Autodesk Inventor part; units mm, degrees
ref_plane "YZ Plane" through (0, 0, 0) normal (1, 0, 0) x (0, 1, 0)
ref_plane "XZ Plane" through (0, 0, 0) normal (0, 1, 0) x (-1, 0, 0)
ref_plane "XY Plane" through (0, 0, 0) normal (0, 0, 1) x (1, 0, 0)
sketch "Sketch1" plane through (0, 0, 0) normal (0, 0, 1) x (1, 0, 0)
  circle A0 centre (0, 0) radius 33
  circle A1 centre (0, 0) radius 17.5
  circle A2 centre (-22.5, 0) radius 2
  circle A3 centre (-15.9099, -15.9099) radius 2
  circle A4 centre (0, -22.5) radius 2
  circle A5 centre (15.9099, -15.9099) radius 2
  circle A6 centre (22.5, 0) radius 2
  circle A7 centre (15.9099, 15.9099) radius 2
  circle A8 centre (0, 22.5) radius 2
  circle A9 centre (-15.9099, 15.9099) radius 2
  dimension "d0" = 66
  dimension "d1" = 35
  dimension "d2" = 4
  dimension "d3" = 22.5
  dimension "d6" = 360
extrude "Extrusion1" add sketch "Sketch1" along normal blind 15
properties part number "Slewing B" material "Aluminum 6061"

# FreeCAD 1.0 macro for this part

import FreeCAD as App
import Part
import Sketcher
from FreeCAD import Vector
Q = App.Units.Quantity

doc = App.newDocument("Part")
params = doc.addObject("Spreadsheet::Sheet", "Params")
for row, (alias, value) in enumerate([
    ("sketch1_diameter", "66 mm"),
    ("sketch1_diameter2", "4 mm"),
    ("sketch1_diameter3", "35 mm"),
    ("pad1_length", "15 mm"),
], start=1):
    params.set(f"A{row}", alias)
    params.set(f"B{row}", "=" + value)
    params.setAlias(f"B{row}", alias)

body = doc.addObject("PartDesign::Body", "Body")

# Sketch on XY plane
sketch1 = doc.addObject("Sketcher::SketchObject", "Sketch")
body.addObject(sketch1)
sketch1.AttachmentSupport = (doc.XY_Plane, [""])
sketch1.MapMode = "FlatFace"
sketch1.addGeometry([
    Part.Circle(Vector(0, 0, 0), Vector(0, 0, 1), 33),  # 0
    Part.Circle(Vector(-15.9, -15.9, 0), Vector(0, 0, 1), 2),  # 1
    Part.Circle(Vector(0, -22.5, 0), Vector(0, 0, 1), 2),  # 2
    Part.Circle(Vector(15.9, -15.9, 0), Vector(0, 0, 1), 2),  # 3
    Part.Circle(Vector(-22.5, 0, 0), Vector(0, 0, 1), 2),  # 4
    Part.Circle(Vector(-15.9, 15.9, 0), Vector(0, 0, 1), 2),  # 5
    Part.Circle(Vector(0, 0, 0), Vector(0, 0, 1), 17.5),  # 6
    Part.Circle(Vector(15.9, 15.9, 0), Vector(0, 0, 1), 2),  # 7
    Part.Circle(Vector(22.5, 0, 0), Vector(0, 0, 1), 2),  # 8
    Part.Circle(Vector(0, 22.5, 0), Vector(0, 0, 1), 2),  # 9
], False)
sketch1.addConstraint([
    Sketcher.Constraint("Coincident", 0, 3, -1, 1),
    Sketcher.Constraint("Coincident", 6, 3, -1, 1),
    Sketcher.Constraint("Equal", 1, 2),
    Sketcher.Constraint("Equal", 2, 3),
    Sketcher.Constraint("Equal", 3, 4),
    Sketcher.Constraint("Equal", 4, 5),
    Sketcher.Constraint("Equal", 5, 7),
    Sketcher.Constraint("Equal", 7, 8),
    Sketcher.Constraint("Equal", 8, 9),
    Sketcher.Constraint("Symmetric", 3, 3, 5, 3, -1, 1),
    Sketcher.Constraint("Symmetric", 1, 3, 7, 3, -1, 1),
    Sketcher.Constraint("Symmetric", 4, 3, 8, 3, -1, 1),
    Sketcher.Constraint("Symmetric", 2, 3, 9, 3, -1, 1),
    Sketcher.Constraint("Symmetric", 1, 3, 3, 3, -2),
    Sketcher.Constraint("PointOnObject", 2, 3, -2),
    Sketcher.Constraint("PointOnObject", 4, 3, -1),
    Sketcher.Constraint("Diameter", 0, Q("66 mm")),
    Sketcher.Constraint("Diameter", 1, Q("4 mm")),
    Sketcher.Constraint("Diameter", 6, Q("35 mm")),
    Sketcher.Constraint("DistanceY", 2, 3, -1, 1, Q("22.5 mm")),
    Sketcher.Constraint("DistanceX", 4, 3, -1, 1, Q("22.5 mm")),
    Sketcher.Constraint("DistanceX", 1, 3, -1, 1, Q("15.91 mm")),
    Sketcher.Constraint("DistanceY", 1, 3, -1, 1, Q("15.91 mm")),
])
sketch1.setExpression("Constraints[16]", "Params.sketch1_diameter")
sketch1.setExpression("Constraints[17]", "Params.sketch1_diameter2")
sketch1.setExpression("Constraints[18]", "Params.sketch1_diameter3")
pad1 = doc.addObject("PartDesign::Pad", "Pad")
body.addObject(pad1)
pad1.Profile = sketch1
pad1.setExpression("Length", "Params.pad1_length")

doc.recompute()
